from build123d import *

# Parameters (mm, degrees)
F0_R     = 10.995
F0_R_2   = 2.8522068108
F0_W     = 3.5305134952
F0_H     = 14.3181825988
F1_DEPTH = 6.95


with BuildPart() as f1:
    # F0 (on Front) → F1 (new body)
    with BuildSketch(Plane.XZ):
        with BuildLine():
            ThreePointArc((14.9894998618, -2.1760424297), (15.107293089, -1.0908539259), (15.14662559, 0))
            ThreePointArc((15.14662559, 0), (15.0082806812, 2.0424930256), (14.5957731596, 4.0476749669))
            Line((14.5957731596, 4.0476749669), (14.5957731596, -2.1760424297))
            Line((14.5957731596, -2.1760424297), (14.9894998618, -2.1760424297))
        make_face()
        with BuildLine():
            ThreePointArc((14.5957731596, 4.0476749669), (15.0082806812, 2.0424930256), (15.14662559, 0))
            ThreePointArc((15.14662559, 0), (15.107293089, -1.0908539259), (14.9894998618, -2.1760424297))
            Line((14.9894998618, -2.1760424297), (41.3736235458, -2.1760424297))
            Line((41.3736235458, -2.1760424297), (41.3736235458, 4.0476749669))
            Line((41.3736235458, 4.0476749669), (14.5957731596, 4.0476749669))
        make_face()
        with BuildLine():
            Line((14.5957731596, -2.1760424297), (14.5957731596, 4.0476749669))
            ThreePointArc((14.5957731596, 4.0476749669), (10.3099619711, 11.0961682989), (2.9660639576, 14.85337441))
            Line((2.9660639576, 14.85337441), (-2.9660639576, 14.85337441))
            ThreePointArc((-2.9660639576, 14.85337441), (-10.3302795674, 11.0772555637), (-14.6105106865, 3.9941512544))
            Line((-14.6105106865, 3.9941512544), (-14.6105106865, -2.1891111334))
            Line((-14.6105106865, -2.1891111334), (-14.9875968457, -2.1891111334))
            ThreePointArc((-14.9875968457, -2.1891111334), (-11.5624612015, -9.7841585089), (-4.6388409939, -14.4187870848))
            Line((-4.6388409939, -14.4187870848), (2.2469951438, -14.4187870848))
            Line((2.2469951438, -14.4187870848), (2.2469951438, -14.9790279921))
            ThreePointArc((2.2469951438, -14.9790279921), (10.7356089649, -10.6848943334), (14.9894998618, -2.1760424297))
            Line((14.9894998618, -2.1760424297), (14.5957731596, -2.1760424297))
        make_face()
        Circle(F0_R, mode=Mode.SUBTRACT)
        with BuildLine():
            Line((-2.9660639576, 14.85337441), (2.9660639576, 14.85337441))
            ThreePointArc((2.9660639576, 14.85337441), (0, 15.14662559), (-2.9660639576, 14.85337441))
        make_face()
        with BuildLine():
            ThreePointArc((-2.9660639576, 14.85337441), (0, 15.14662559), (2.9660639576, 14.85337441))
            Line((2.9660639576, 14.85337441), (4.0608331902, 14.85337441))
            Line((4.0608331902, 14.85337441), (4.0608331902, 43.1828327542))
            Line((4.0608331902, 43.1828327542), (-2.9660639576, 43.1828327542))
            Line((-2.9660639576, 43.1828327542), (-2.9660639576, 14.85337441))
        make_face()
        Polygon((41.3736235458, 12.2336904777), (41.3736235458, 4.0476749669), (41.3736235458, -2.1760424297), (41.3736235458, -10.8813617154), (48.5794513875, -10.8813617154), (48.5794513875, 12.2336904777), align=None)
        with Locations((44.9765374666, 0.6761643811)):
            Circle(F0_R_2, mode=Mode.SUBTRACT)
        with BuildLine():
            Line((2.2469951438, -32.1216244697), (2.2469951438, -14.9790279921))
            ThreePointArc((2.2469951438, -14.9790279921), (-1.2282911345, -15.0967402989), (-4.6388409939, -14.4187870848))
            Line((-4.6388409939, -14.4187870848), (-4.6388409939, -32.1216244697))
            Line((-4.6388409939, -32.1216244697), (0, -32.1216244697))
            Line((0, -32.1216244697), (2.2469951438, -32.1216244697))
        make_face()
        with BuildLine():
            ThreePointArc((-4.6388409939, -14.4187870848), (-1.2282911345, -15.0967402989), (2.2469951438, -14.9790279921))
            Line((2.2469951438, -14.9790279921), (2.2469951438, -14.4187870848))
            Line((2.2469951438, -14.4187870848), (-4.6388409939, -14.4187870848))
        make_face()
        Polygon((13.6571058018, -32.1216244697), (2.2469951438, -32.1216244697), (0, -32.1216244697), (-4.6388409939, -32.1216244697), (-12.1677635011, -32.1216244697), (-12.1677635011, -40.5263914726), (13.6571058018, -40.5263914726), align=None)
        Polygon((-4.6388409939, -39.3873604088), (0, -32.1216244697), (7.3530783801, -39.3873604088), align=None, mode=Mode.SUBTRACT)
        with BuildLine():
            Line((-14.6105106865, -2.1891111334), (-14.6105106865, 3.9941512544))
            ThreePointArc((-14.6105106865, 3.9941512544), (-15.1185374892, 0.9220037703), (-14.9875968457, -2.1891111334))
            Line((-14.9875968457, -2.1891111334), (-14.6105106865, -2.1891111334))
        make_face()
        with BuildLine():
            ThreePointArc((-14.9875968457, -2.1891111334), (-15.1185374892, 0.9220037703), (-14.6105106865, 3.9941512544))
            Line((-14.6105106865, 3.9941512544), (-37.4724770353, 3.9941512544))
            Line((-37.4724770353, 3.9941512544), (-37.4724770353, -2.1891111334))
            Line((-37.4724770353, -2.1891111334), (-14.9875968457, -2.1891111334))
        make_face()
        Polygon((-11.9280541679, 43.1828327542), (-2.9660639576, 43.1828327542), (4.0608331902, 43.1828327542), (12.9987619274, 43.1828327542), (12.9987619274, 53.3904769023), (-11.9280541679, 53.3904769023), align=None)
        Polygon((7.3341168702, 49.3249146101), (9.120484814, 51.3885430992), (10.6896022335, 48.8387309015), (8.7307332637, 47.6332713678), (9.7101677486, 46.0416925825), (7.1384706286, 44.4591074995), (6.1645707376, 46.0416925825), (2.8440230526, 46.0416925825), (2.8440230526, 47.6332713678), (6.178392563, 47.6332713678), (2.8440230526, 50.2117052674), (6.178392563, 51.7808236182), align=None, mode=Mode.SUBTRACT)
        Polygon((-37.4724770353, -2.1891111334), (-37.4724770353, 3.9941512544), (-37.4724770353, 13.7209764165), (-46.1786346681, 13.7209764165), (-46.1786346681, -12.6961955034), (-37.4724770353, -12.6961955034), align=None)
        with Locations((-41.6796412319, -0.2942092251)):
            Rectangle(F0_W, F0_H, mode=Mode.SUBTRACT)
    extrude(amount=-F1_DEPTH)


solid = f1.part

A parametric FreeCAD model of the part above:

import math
import FreeCAD as App
import Part
import Sketcher
from FreeCAD import Vector
Q = App.Units.Quantity


def add_polygon(sketch, points):
    """Adds a closed chain of lines whose ends are joined by coincident constraints."""
    first, n = sketch.GeometryCount, len(points)
    for a, b in zip(points, points[1:] + points[:1]):
        sketch.addGeometry(Part.LineSegment(App.Vector(*a, 0), App.Vector(*b, 0)), False)
    for i in range(n):
        sketch.addConstraint(Sketcher.Constraint("Coincident", first + i, 2, first + (i + 1) % n, 1))

doc = App.newDocument("Part")
body = doc.addObject("PartDesign::Body", "Body")

# Sketch on XZ plane
sketch1 = body.newObject("Sketcher::SketchObject", "Sketch")
sketch1.AttachmentSupport = (doc.getObject("XZ_Plane"), [""])
sketch1.MapMode = "FlatFace"
sketch1.addGeometry(Part.LineSegment(Vector(15, -2.2, 0), Vector(41.4, -2.2, 0)), False)  # 0
sketch1.addGeometry(Part.LineSegment(Vector(41.4, -2.2, 0), Vector(41.4, -10.9, 0)), False)  # 1
sketch1.addGeometry(Part.LineSegment(Vector(41.4, -10.9, 0), Vector(48.6, -10.9, 0)), False)  # 2
sketch1.addGeometry(Part.LineSegment(Vector(48.6, -10.9, 0), Vector(48.6, 12.2, 0)), False)  # 3
sketch1.addGeometry(Part.LineSegment(Vector(48.6, 12.2, 0), Vector(41.4, 12.2, 0)), False)  # 4
sketch1.addGeometry(Part.LineSegment(Vector(41.4, 12.2, 0), Vector(41.4, 4, 0)), False)  # 5
sketch1.addGeometry(Part.LineSegment(Vector(41.4, 4, 0), Vector(14.6, 4, 0)), False)  # 6
sketch1.addGeometry(Part.ArcOfCircle(Part.Circle(Vector(0, 0, 0), Vector(0, 0, 1), 15.1), math.radians(15), math.radians(79)), False)  # 7
sketch1.addGeometry(Part.LineSegment(Vector(3, 14.9, 0), Vector(4.1, 14.9, 0)), False)  # 8
sketch1.addGeometry(Part.LineSegment(Vector(4.1, 14.9, 0), Vector(4.1, 43.2, 0)), False)  # 9
sketch1.addGeometry(Part.LineSegment(Vector(4.1, 43.2, 0), Vector(13, 43.2, 0)), False)  # 10
sketch1.addGeometry(Part.LineSegment(Vector(13, 43.2, 0), Vector(13, 53.4, 0)), False)  # 11
sketch1.addGeometry(Part.LineSegment(Vector(13, 53.4, 0), Vector(-11.9, 53.4, 0)), False)  # 12
sketch1.addGeometry(Part.LineSegment(Vector(-11.9, 53.4, 0), Vector(-11.9, 43.2, 0)), False)  # 13
sketch1.addGeometry(Part.LineSegment(Vector(-11.9, 43.2, 0), Vector(-3, 43.2, 0)), False)  # 14
sketch1.addGeometry(Part.LineSegment(Vector(-3, 43.2, 0), Vector(-3, 14.9, 0)), False)  # 15
sketch1.addGeometry(Part.ArcOfCircle(Part.Circle(Vector(0, 0, 0), Vector(0, 0, 1), 15.1), math.radians(101), math.radians(165)), False)  # 16
sketch1.addGeometry(Part.LineSegment(Vector(-14.6, 4, 0), Vector(-37.5, 4, 0)), False)  # 17
sketch1.addGeometry(Part.LineSegment(Vector(-37.5, 4, 0), Vector(-37.5, 13.7, 0)), False)  # 18
sketch1.addGeometry(Part.LineSegment(Vector(-37.5, 13.7, 0), Vector(-46.2, 13.7, 0)), False)  # 19
sketch1.addGeometry(Part.LineSegment(Vector(-46.2, 13.7, 0), Vector(-46.2, -12.7, 0)), False)  # 20
sketch1.addGeometry(Part.LineSegment(Vector(-46.2, -12.7, 0), Vector(-37.5, -12.7, 0)), False)  # 21
sketch1.addGeometry(Part.LineSegment(Vector(-37.5, -12.7, 0), Vector(-37.5, -2.2, 0)), False)  # 22
sketch1.addGeometry(Part.LineSegment(Vector(-37.5, -2.2, 0), Vector(-15, -2.2, 0)), False)  # 23
sketch1.addGeometry(Part.ArcOfCircle(Part.Circle(Vector(0, 0, 0), Vector(0, 0, 1), 15.1), math.radians(-172), math.radians(-108)), False)  # 24
sketch1.addGeometry(Part.LineSegment(Vector(-4.6, -14.4, 0), Vector(-4.6, -32.1, 0)), False)  # 25
sketch1.addGeometry(Part.LineSegment(Vector(-4.6, -32.1, 0), Vector(-12.2, -32.1, 0)), False)  # 26
sketch1.addGeometry(Part.LineSegment(Vector(-12.2, -32.1, 0), Vector(-12.2, -40.5, 0)), False)  # 27
sketch1.addGeometry(Part.LineSegment(Vector(-12.2, -40.5, 0), Vector(13.7, -40.5, 0)), False)  # 28
sketch1.addGeometry(Part.LineSegment(Vector(13.7, -40.5, 0), Vector(13.7, -32.1, 0)), False)  # 29
sketch1.addGeometry(Part.LineSegment(Vector(13.7, -32.1, 0), Vector(2.2, -32.1, 0)), False)  # 30
sketch1.addGeometry(Part.LineSegment(Vector(2.2, -32.1, 0), Vector(2.2, -15, 0)), False)  # 31
sketch1.addGeometry(Part.ArcOfCircle(Part.Circle(Vector(0, 0, 0), Vector(0, 0, 1), 15.1), math.radians(-81), math.radians(-8)), False)  # 32
add_polygon(sketch1, [(7.4, -39.4), (-4.6, -39.4), (0, -32.1)])  # lines 33-35
add_polygon(sketch1, [(-39.9, -7.5), (-43.4, -7.5), (-43.4, 6.9), (-39.9, 6.9)])  # lines 36-39
sketch1.addGeometry(Part.Circle(Vector(0, 0, 0), Vector(0, 0, 1), 11), False)  # 40
sketch1.addGeometry(Part.Circle(Vector(45, 0.7, 0), Vector(0, 0, 1), 2.9), False)  # 41
add_polygon(sketch1, [(6.2, 51.8), (7.3, 49.3), (9.1, 51.4), (10.7, 48.8), (8.7, 47.6), (9.7, 46), (7.1, 44.5), (6.2, 46), (2.8, 46), (2.8, 47.6), (6.2, 47.6), (2.8, 50.2)])  # lines 42-53
sketch1.addConstraint(Sketcher.Constraint("Coincident", 0, 2, 1, 1))
sketch1.addConstraint(Sketcher.Constraint("Coincident", 1, 2, 2, 1))
sketch1.addConstraint(Sketcher.Constraint("Coincident", 2, 2, 3, 1))
sketch1.addConstraint(Sketcher.Constraint("Coincident", 3, 2, 4, 1))
sketch1.addConstraint(Sketcher.Constraint("Coincident", 4, 2, 5, 1))
sketch1.addConstraint(Sketcher.Constraint("Coincident", 5, 2, 6, 1))
sketch1.addConstraint(Sketcher.Constraint("Coincident", 6, 2, 7, 1))
sketch1.addConstraint(Sketcher.Constraint("Coincident", 7, 2, 8, 1))
sketch1.addConstraint(Sketcher.Constraint("Coincident", 8, 2, 9, 1))
sketch1.addConstraint(Sketcher.Constraint("Coincident", 9, 2, 10, 1))
sketch1.addConstraint(Sketcher.Constraint("Coincident", 10, 2, 11, 1))
sketch1.addConstraint(Sketcher.Constraint("Coincident", 11, 2, 12, 1))
sketch1.addConstraint(Sketcher.Constraint("Coincident", 12, 2, 13, 1))
sketch1.addConstraint(Sketcher.Constraint("Coincident", 13, 2, 14, 1))
sketch1.addConstraint(Sketcher.Constraint("Coincident", 14, 2, 15, 1))
sketch1.addConstraint(Sketcher.Constraint("Coincident", 15, 2, 16, 1))
sketch1.addConstraint(Sketcher.Constraint("Coincident", 16, 2, 17, 1))
sketch1.addConstraint(Sketcher.Constraint("Coincident", 17, 2, 18, 1))
sketch1.addConstraint(Sketcher.Constraint("Coincident", 18, 2, 19, 1))
sketch1.addConstraint(Sketcher.Constraint("Coincident", 19, 2, 20, 1))
sketch1.addConstraint(Sketcher.Constraint("Coincident", 20, 2, 21, 1))
sketch1.addConstraint(Sketcher.Constraint("Coincident", 21, 2, 22, 1))
sketch1.addConstraint(Sketcher.Constraint("Coincident", 22, 2, 23, 1))
sketch1.addConstraint(Sketcher.Constraint("Coincident", 23, 2, 24, 1))
sketch1.addConstraint(Sketcher.Constraint("Coincident", 24, 2, 25, 1))
sketch1.addConstraint(Sketcher.Constraint("Coincident", 25, 2, 26, 1))
sketch1.addConstraint(Sketcher.Constraint("Coincident", 26, 2, 27, 1))
sketch1.addConstraint(Sketcher.Constraint("Coincident", 27, 2, 28, 1))
sketch1.addConstraint(Sketcher.Constraint("Coincident", 28, 2, 29, 1))
sketch1.addConstraint(Sketcher.Constraint("Coincident", 29, 2, 30, 1))
sketch1.addConstraint(Sketcher.Constraint("Coincident", 30, 2, 31, 1))
sketch1.addConstraint(Sketcher.Constraint("Coincident", 31, 2, 32, 1))
sketch1.addConstraint(Sketcher.Constraint("Coincident", 32, 2, 0, 1))
sketch1.addConstraint(Sketcher.Constraint("Horizontal", 0))
sketch1.addConstraint(Sketcher.Constraint("Vertical", 1))
sketch1.addConstraint(Sketcher.Constraint("Horizontal", 2))
sketch1.addConstraint(Sketcher.Constraint("Vertical", 3))
sketch1.addConstraint(Sketcher.Constraint("Horizontal", 4))
sketch1.addConstraint(Sketcher.Constraint("Vertical", 5))
sketch1.addConstraint(Sketcher.Constraint("Horizontal", 6))
sketch1.addConstraint(Sketcher.Constraint("Horizontal", 8))
sketch1.addConstraint(Sketcher.Constraint("Vertical", 9))
sketch1.addConstraint(Sketcher.Constraint("Horizontal", 10))
sketch1.addConstraint(Sketcher.Constraint("Vertical", 11))
sketch1.addConstraint(Sketcher.Constraint("Horizontal", 12))
sketch1.addConstraint(Sketcher.Constraint("Vertical", 13))
sketch1.addConstraint(Sketcher.Constraint("Horizontal", 14))
sketch1.addConstraint(Sketcher.Constraint("Vertical", 15))
sketch1.addConstraint(Sketcher.Constraint("Horizontal", 17))
sketch1.addConstraint(Sketcher.Constraint("Vertical", 18))
sketch1.addConstraint(Sketcher.Constraint("Horizontal", 19))
sketch1.addConstraint(Sketcher.Constraint("Vertical", 20))
sketch1.addConstraint(Sketcher.Constraint("Horizontal", 21))
sketch1.addConstraint(Sketcher.Constraint("Vertical", 22))
sketch1.addConstraint(Sketcher.Constraint("Horizontal", 23))
sketch1.addConstraint(Sketcher.Constraint("Vertical", 25))
sketch1.addConstraint(Sketcher.Constraint("Horizontal", 26))
sketch1.addConstraint(Sketcher.Constraint("Vertical", 27))
sketch1.addConstraint(Sketcher.Constraint("Horizontal", 28))
sketch1.addConstraint(Sketcher.Constraint("Vertical", 29))
sketch1.addConstraint(Sketcher.Constraint("Horizontal", 30))
sketch1.addConstraint(Sketcher.Constraint("Vertical", 31))
sketch1.addConstraint(Sketcher.Constraint("Horizontal", 33))
sketch1.addConstraint(Sketcher.Constraint("Horizontal", 36))
sketch1.addConstraint(Sketcher.Constraint("Vertical", 37))
sketch1.addConstraint(Sketcher.Constraint("Horizontal", 38))
sketch1.addConstraint(Sketcher.Constraint("Vertical", 39))
sketch1.addConstraint(Sketcher.Constraint("Horizontal", 49))
sketch1.addConstraint(Sketcher.Constraint("Vertical", 50))
sketch1.addConstraint(Sketcher.Constraint("Horizontal", 51))
sketch1.addConstraint(Sketcher.Constraint("Coincident", 7, 3, -1, 1))
sketch1.addConstraint(Sketcher.Constraint("Coincident", 16, 3, -1, 1))
sketch1.addConstraint(Sketcher.Constraint("Coincident", 24, 3, -1, 1))
sketch1.addConstraint(Sketcher.Constraint("Coincident", 32, 3, -1, 1))
sketch1.addConstraint(Sketcher.Constraint("Coincident", 40, 3, -1, 1))
sketch1.addConstraint(Sketcher.Constraint("Equal", 7, 16))
sketch1.addConstraint(Sketcher.Constraint("Equal", 16, 24))
sketch1.addConstraint(Sketcher.Constraint("Equal", 24, 32))
sketch1.addConstraint(Sketcher.Constraint("PointOnObject", 34, 2, -2))
sketch1.addConstraint(Sketcher.Constraint("Perpendicular", 44, 45))
sketch1.addConstraint(Sketcher.Constraint("Perpendicular", 45, 46))
sketch1.addConstraint(Sketcher.Constraint("Perpendicular", 46, 47))
sketch1.addConstraint(Sketcher.Constraint("Perpendicular", 47, 48))
sketch1.addConstraint(Sketcher.Constraint("Perpendicular", 42, 53))
sketch1.addConstraint(Sketcher.Constraint("Horizontal", 10, 2, 13, 2))
sketch1.addConstraint(Sketcher.Constraint("Horizontal", 8, 2, 15, 2))
sketch1.addConstraint(Sketcher.Constraint("Horizontal", 26, 2, 29, 2))
sketch1.addConstraint(Sketcher.Constraint("Horizontal", 30, 2, 34, 2))
sketch1.addConstraint(Sketcher.Constraint("Horizontal", 46, 2, 48, 2))
sketch1.addConstraint(Sketcher.Constraint("Horizontal", 45, 2, 50, 2))
sketch1.addConstraint(Sketcher.Constraint("Vertical", 1, 2, 4, 2))
sketch1.addConstraint(Sketcher.Constraint("Vertical", 18, 2, 21, 2))
sketch1.addConstraint(Sketcher.Constraint("Vertical", 25, 2, 33, 2))
sketch1.addConstraint(Sketcher.Constraint("Vertical", 50, 2, 52, 2))
sketch1.addConstraint(Sketcher.Constraint("Vertical", 51, 2, 53, 2))
sketch1.addConstraint(Sketcher.Constraint("Diameter", 40, Q("21.99 mm")))
sketch1.addConstraint(Sketcher.Constraint("Diameter", 41, Q("5.704414 mm")))
sketch1.addConstraint(Sketcher.Constraint("Radius", 7, Q("15.146626 mm")))
sketch1.addConstraint(Sketcher.Constraint("Distance", 46, Q("1.8688 mm")))
sketch1.addConstraint(Sketcher.Constraint("DistanceX", 6, 2, 6, 1, Q("26.77785 mm")))
sketch1.addConstraint(Sketcher.Constraint("DistanceX", 8, 1, 8, 2, Q("1.094769 mm")))
sketch1.addConstraint(Sketcher.Constraint("DistanceX", 10, 1, 10, 2, Q("8.937929 mm")))
sketch1.addConstraint(Sketcher.Constraint("DistanceX", 14, 1, 14, 2, Q("8.96199 mm")))
sketch1.addConstraint(Sketcher.Constraint("DistanceX", 23, 1, 23, 2, Q("22.48488 mm")))
sketch1.addConstraint(Sketcher.Constraint("DistanceX", 28, 1, 28, 2, Q("25.824869 mm")))
sketch1.addConstraint(Sketcher.Constraint("DistanceX", 30, 2, 30, 1, Q("11.410111 mm")))
sketch1.addConstraint(Sketcher.Constraint("DistanceX", 33, 2, 33, 1, Q("11.991919 mm")))
sketch1.addConstraint(Sketcher.Constraint("DistanceX", 51, 1, 51, 2, Q("3.33437 mm")))
sketch1.addConstraint(Sketcher.Constraint("DistanceY", 1, 2, 1, 1, Q("8.705319 mm")))
sketch1.addConstraint(Sketcher.Constraint("DistanceY", 9, 1, 9, 2, Q("28.329458 mm")))
sketch1.addConstraint(Sketcher.Constraint("DistanceY", 20, 2, 20, 1, Q("26.417172 mm")))
sketch1.addConstraint(Sketcher.Constraint("DistanceY", 50, 1, 50, 2, Q("1.591579 mm")))
sketch1.addConstraint(Sketcher.Constraint("DistanceX", -1, 1, 32, 2, Q("14.9895 mm")))
sketch1.addConstraint(Sketcher.Constraint("DistanceY", 36, 2, -1, 1, Q("7.453301 mm")))
sketch1.addConstraint(Sketcher.Constraint("DistanceY", 6, 2, 8, 2, Q("10.805699 mm")))
sketch1.addConstraint(Sketcher.Constraint("DistanceY", 6, 2, 11, 2, Q("49.342802 mm")))
sketch1.addConstraint(Sketcher.Constraint("DistanceY", 10, 2, 44, 2, Q("5.655898 mm")))
sketch1.addConstraint(Sketcher.Constraint("DistanceX", 9, 2, 45, 2, Q("4.6699 mm")))
sketch1.addConstraint(Sketcher.Constraint("DistanceX", 48, 2, 47, 2, Q("0.9739 mm")))
sketch1.addConstraint(Sketcher.Constraint("Distance", 34, Q("8.620311 mm")))
sketch1.addConstraint(Sketcher.Constraint("Distance", 43, Q("2.729409 mm")))
sketch1.addConstraint(Sketcher.Constraint("Distance", 44, Q("2.993939 mm")))
sketch1.addConstraint(Sketcher.Constraint("DistanceX", 0, 1, 0, 2, Q("26.384124 mm")))
sketch1.addConstraint(Sketcher.Constraint("DistanceX", 2, 1, 2, 2, Q("7.205828 mm")))
sketch1.addConstraint(Sketcher.Constraint("DistanceX", 17, 2, 17, 1, Q("22.861966 mm")))
sketch1.addConstraint(Sketcher.Constraint("DistanceX", 19, 2, 19, 1, Q("8.706158 mm")))
sketch1.addConstraint(Sketcher.Constraint("DistanceX", 26, 2, 26, 1, Q("7.528923 mm")))
sketch1.addConstraint(Sketcher.Constraint("DistanceX", 36, 2, 36, 1, Q("3.530513 mm")))
sketch1.addConstraint(Sketcher.Constraint("DistanceX", 49, 2, 49, 1, Q("3.320548 mm")))
sketch1.addConstraint(Sketcher.Constraint("DistanceY", 3, 1, 3, 2, Q("23.115052 mm")))
sketch1.addConstraint(Sketcher.Constraint("DistanceY", 18, 1, 18, 2, Q("9.726825 mm")))
sketch1.addConstraint(Sketcher.Constraint("DistanceY", 22, 1, 22, 2, Q("10.507084 mm")))
sketch1.addConstraint(Sketcher.Constraint("DistanceY", 25, 2, 25, 1, Q("17.702837 mm")))
sketch1.addConstraint(Sketcher.Constraint("DistanceY", 27, 2, 27, 1, Q("8.404767 mm")))
sketch1.addConstraint(Sketcher.Constraint("DistanceY", 31, 1, 31, 2, Q("17.142596 mm")))
sketch1.addConstraint(Sketcher.Constraint("DistanceY", 37, 1, 37, 2, Q("14.318183 mm")))
sketch1.addConstraint(Sketcher.Constraint("DistanceY", -1, 1, 45, 2, Q("47.633271 mm")))
sketch1.addConstraint(Sketcher.Constraint("DistanceY", 41, 3, 5, 2, Q("3.371511 mm")))
sketch1.addConstraint(Sketcher.Constraint("DistanceX", 36, 2, 21, 2, Q("5.972421 mm")))
sketch1.addConstraint(Sketcher.Constraint("DistanceY", 9, 2, 42, 2, Q("6.142082 mm")))
sketch1.addConstraint(Sketcher.Constraint("DistanceY", 42, 2, 52, 2, Q("0.886791 mm")))
sketch1.addConstraint(Sketcher.Constraint("DistanceX", -1, 1, 41, 3, Q("44.976537 mm")))
pad1 = body.newObject("PartDesign::Pad", "Pad")
pad1.Profile = sketch1
pad1.Length = 6.95
pad1.Reversed = True

doc.recompute()
